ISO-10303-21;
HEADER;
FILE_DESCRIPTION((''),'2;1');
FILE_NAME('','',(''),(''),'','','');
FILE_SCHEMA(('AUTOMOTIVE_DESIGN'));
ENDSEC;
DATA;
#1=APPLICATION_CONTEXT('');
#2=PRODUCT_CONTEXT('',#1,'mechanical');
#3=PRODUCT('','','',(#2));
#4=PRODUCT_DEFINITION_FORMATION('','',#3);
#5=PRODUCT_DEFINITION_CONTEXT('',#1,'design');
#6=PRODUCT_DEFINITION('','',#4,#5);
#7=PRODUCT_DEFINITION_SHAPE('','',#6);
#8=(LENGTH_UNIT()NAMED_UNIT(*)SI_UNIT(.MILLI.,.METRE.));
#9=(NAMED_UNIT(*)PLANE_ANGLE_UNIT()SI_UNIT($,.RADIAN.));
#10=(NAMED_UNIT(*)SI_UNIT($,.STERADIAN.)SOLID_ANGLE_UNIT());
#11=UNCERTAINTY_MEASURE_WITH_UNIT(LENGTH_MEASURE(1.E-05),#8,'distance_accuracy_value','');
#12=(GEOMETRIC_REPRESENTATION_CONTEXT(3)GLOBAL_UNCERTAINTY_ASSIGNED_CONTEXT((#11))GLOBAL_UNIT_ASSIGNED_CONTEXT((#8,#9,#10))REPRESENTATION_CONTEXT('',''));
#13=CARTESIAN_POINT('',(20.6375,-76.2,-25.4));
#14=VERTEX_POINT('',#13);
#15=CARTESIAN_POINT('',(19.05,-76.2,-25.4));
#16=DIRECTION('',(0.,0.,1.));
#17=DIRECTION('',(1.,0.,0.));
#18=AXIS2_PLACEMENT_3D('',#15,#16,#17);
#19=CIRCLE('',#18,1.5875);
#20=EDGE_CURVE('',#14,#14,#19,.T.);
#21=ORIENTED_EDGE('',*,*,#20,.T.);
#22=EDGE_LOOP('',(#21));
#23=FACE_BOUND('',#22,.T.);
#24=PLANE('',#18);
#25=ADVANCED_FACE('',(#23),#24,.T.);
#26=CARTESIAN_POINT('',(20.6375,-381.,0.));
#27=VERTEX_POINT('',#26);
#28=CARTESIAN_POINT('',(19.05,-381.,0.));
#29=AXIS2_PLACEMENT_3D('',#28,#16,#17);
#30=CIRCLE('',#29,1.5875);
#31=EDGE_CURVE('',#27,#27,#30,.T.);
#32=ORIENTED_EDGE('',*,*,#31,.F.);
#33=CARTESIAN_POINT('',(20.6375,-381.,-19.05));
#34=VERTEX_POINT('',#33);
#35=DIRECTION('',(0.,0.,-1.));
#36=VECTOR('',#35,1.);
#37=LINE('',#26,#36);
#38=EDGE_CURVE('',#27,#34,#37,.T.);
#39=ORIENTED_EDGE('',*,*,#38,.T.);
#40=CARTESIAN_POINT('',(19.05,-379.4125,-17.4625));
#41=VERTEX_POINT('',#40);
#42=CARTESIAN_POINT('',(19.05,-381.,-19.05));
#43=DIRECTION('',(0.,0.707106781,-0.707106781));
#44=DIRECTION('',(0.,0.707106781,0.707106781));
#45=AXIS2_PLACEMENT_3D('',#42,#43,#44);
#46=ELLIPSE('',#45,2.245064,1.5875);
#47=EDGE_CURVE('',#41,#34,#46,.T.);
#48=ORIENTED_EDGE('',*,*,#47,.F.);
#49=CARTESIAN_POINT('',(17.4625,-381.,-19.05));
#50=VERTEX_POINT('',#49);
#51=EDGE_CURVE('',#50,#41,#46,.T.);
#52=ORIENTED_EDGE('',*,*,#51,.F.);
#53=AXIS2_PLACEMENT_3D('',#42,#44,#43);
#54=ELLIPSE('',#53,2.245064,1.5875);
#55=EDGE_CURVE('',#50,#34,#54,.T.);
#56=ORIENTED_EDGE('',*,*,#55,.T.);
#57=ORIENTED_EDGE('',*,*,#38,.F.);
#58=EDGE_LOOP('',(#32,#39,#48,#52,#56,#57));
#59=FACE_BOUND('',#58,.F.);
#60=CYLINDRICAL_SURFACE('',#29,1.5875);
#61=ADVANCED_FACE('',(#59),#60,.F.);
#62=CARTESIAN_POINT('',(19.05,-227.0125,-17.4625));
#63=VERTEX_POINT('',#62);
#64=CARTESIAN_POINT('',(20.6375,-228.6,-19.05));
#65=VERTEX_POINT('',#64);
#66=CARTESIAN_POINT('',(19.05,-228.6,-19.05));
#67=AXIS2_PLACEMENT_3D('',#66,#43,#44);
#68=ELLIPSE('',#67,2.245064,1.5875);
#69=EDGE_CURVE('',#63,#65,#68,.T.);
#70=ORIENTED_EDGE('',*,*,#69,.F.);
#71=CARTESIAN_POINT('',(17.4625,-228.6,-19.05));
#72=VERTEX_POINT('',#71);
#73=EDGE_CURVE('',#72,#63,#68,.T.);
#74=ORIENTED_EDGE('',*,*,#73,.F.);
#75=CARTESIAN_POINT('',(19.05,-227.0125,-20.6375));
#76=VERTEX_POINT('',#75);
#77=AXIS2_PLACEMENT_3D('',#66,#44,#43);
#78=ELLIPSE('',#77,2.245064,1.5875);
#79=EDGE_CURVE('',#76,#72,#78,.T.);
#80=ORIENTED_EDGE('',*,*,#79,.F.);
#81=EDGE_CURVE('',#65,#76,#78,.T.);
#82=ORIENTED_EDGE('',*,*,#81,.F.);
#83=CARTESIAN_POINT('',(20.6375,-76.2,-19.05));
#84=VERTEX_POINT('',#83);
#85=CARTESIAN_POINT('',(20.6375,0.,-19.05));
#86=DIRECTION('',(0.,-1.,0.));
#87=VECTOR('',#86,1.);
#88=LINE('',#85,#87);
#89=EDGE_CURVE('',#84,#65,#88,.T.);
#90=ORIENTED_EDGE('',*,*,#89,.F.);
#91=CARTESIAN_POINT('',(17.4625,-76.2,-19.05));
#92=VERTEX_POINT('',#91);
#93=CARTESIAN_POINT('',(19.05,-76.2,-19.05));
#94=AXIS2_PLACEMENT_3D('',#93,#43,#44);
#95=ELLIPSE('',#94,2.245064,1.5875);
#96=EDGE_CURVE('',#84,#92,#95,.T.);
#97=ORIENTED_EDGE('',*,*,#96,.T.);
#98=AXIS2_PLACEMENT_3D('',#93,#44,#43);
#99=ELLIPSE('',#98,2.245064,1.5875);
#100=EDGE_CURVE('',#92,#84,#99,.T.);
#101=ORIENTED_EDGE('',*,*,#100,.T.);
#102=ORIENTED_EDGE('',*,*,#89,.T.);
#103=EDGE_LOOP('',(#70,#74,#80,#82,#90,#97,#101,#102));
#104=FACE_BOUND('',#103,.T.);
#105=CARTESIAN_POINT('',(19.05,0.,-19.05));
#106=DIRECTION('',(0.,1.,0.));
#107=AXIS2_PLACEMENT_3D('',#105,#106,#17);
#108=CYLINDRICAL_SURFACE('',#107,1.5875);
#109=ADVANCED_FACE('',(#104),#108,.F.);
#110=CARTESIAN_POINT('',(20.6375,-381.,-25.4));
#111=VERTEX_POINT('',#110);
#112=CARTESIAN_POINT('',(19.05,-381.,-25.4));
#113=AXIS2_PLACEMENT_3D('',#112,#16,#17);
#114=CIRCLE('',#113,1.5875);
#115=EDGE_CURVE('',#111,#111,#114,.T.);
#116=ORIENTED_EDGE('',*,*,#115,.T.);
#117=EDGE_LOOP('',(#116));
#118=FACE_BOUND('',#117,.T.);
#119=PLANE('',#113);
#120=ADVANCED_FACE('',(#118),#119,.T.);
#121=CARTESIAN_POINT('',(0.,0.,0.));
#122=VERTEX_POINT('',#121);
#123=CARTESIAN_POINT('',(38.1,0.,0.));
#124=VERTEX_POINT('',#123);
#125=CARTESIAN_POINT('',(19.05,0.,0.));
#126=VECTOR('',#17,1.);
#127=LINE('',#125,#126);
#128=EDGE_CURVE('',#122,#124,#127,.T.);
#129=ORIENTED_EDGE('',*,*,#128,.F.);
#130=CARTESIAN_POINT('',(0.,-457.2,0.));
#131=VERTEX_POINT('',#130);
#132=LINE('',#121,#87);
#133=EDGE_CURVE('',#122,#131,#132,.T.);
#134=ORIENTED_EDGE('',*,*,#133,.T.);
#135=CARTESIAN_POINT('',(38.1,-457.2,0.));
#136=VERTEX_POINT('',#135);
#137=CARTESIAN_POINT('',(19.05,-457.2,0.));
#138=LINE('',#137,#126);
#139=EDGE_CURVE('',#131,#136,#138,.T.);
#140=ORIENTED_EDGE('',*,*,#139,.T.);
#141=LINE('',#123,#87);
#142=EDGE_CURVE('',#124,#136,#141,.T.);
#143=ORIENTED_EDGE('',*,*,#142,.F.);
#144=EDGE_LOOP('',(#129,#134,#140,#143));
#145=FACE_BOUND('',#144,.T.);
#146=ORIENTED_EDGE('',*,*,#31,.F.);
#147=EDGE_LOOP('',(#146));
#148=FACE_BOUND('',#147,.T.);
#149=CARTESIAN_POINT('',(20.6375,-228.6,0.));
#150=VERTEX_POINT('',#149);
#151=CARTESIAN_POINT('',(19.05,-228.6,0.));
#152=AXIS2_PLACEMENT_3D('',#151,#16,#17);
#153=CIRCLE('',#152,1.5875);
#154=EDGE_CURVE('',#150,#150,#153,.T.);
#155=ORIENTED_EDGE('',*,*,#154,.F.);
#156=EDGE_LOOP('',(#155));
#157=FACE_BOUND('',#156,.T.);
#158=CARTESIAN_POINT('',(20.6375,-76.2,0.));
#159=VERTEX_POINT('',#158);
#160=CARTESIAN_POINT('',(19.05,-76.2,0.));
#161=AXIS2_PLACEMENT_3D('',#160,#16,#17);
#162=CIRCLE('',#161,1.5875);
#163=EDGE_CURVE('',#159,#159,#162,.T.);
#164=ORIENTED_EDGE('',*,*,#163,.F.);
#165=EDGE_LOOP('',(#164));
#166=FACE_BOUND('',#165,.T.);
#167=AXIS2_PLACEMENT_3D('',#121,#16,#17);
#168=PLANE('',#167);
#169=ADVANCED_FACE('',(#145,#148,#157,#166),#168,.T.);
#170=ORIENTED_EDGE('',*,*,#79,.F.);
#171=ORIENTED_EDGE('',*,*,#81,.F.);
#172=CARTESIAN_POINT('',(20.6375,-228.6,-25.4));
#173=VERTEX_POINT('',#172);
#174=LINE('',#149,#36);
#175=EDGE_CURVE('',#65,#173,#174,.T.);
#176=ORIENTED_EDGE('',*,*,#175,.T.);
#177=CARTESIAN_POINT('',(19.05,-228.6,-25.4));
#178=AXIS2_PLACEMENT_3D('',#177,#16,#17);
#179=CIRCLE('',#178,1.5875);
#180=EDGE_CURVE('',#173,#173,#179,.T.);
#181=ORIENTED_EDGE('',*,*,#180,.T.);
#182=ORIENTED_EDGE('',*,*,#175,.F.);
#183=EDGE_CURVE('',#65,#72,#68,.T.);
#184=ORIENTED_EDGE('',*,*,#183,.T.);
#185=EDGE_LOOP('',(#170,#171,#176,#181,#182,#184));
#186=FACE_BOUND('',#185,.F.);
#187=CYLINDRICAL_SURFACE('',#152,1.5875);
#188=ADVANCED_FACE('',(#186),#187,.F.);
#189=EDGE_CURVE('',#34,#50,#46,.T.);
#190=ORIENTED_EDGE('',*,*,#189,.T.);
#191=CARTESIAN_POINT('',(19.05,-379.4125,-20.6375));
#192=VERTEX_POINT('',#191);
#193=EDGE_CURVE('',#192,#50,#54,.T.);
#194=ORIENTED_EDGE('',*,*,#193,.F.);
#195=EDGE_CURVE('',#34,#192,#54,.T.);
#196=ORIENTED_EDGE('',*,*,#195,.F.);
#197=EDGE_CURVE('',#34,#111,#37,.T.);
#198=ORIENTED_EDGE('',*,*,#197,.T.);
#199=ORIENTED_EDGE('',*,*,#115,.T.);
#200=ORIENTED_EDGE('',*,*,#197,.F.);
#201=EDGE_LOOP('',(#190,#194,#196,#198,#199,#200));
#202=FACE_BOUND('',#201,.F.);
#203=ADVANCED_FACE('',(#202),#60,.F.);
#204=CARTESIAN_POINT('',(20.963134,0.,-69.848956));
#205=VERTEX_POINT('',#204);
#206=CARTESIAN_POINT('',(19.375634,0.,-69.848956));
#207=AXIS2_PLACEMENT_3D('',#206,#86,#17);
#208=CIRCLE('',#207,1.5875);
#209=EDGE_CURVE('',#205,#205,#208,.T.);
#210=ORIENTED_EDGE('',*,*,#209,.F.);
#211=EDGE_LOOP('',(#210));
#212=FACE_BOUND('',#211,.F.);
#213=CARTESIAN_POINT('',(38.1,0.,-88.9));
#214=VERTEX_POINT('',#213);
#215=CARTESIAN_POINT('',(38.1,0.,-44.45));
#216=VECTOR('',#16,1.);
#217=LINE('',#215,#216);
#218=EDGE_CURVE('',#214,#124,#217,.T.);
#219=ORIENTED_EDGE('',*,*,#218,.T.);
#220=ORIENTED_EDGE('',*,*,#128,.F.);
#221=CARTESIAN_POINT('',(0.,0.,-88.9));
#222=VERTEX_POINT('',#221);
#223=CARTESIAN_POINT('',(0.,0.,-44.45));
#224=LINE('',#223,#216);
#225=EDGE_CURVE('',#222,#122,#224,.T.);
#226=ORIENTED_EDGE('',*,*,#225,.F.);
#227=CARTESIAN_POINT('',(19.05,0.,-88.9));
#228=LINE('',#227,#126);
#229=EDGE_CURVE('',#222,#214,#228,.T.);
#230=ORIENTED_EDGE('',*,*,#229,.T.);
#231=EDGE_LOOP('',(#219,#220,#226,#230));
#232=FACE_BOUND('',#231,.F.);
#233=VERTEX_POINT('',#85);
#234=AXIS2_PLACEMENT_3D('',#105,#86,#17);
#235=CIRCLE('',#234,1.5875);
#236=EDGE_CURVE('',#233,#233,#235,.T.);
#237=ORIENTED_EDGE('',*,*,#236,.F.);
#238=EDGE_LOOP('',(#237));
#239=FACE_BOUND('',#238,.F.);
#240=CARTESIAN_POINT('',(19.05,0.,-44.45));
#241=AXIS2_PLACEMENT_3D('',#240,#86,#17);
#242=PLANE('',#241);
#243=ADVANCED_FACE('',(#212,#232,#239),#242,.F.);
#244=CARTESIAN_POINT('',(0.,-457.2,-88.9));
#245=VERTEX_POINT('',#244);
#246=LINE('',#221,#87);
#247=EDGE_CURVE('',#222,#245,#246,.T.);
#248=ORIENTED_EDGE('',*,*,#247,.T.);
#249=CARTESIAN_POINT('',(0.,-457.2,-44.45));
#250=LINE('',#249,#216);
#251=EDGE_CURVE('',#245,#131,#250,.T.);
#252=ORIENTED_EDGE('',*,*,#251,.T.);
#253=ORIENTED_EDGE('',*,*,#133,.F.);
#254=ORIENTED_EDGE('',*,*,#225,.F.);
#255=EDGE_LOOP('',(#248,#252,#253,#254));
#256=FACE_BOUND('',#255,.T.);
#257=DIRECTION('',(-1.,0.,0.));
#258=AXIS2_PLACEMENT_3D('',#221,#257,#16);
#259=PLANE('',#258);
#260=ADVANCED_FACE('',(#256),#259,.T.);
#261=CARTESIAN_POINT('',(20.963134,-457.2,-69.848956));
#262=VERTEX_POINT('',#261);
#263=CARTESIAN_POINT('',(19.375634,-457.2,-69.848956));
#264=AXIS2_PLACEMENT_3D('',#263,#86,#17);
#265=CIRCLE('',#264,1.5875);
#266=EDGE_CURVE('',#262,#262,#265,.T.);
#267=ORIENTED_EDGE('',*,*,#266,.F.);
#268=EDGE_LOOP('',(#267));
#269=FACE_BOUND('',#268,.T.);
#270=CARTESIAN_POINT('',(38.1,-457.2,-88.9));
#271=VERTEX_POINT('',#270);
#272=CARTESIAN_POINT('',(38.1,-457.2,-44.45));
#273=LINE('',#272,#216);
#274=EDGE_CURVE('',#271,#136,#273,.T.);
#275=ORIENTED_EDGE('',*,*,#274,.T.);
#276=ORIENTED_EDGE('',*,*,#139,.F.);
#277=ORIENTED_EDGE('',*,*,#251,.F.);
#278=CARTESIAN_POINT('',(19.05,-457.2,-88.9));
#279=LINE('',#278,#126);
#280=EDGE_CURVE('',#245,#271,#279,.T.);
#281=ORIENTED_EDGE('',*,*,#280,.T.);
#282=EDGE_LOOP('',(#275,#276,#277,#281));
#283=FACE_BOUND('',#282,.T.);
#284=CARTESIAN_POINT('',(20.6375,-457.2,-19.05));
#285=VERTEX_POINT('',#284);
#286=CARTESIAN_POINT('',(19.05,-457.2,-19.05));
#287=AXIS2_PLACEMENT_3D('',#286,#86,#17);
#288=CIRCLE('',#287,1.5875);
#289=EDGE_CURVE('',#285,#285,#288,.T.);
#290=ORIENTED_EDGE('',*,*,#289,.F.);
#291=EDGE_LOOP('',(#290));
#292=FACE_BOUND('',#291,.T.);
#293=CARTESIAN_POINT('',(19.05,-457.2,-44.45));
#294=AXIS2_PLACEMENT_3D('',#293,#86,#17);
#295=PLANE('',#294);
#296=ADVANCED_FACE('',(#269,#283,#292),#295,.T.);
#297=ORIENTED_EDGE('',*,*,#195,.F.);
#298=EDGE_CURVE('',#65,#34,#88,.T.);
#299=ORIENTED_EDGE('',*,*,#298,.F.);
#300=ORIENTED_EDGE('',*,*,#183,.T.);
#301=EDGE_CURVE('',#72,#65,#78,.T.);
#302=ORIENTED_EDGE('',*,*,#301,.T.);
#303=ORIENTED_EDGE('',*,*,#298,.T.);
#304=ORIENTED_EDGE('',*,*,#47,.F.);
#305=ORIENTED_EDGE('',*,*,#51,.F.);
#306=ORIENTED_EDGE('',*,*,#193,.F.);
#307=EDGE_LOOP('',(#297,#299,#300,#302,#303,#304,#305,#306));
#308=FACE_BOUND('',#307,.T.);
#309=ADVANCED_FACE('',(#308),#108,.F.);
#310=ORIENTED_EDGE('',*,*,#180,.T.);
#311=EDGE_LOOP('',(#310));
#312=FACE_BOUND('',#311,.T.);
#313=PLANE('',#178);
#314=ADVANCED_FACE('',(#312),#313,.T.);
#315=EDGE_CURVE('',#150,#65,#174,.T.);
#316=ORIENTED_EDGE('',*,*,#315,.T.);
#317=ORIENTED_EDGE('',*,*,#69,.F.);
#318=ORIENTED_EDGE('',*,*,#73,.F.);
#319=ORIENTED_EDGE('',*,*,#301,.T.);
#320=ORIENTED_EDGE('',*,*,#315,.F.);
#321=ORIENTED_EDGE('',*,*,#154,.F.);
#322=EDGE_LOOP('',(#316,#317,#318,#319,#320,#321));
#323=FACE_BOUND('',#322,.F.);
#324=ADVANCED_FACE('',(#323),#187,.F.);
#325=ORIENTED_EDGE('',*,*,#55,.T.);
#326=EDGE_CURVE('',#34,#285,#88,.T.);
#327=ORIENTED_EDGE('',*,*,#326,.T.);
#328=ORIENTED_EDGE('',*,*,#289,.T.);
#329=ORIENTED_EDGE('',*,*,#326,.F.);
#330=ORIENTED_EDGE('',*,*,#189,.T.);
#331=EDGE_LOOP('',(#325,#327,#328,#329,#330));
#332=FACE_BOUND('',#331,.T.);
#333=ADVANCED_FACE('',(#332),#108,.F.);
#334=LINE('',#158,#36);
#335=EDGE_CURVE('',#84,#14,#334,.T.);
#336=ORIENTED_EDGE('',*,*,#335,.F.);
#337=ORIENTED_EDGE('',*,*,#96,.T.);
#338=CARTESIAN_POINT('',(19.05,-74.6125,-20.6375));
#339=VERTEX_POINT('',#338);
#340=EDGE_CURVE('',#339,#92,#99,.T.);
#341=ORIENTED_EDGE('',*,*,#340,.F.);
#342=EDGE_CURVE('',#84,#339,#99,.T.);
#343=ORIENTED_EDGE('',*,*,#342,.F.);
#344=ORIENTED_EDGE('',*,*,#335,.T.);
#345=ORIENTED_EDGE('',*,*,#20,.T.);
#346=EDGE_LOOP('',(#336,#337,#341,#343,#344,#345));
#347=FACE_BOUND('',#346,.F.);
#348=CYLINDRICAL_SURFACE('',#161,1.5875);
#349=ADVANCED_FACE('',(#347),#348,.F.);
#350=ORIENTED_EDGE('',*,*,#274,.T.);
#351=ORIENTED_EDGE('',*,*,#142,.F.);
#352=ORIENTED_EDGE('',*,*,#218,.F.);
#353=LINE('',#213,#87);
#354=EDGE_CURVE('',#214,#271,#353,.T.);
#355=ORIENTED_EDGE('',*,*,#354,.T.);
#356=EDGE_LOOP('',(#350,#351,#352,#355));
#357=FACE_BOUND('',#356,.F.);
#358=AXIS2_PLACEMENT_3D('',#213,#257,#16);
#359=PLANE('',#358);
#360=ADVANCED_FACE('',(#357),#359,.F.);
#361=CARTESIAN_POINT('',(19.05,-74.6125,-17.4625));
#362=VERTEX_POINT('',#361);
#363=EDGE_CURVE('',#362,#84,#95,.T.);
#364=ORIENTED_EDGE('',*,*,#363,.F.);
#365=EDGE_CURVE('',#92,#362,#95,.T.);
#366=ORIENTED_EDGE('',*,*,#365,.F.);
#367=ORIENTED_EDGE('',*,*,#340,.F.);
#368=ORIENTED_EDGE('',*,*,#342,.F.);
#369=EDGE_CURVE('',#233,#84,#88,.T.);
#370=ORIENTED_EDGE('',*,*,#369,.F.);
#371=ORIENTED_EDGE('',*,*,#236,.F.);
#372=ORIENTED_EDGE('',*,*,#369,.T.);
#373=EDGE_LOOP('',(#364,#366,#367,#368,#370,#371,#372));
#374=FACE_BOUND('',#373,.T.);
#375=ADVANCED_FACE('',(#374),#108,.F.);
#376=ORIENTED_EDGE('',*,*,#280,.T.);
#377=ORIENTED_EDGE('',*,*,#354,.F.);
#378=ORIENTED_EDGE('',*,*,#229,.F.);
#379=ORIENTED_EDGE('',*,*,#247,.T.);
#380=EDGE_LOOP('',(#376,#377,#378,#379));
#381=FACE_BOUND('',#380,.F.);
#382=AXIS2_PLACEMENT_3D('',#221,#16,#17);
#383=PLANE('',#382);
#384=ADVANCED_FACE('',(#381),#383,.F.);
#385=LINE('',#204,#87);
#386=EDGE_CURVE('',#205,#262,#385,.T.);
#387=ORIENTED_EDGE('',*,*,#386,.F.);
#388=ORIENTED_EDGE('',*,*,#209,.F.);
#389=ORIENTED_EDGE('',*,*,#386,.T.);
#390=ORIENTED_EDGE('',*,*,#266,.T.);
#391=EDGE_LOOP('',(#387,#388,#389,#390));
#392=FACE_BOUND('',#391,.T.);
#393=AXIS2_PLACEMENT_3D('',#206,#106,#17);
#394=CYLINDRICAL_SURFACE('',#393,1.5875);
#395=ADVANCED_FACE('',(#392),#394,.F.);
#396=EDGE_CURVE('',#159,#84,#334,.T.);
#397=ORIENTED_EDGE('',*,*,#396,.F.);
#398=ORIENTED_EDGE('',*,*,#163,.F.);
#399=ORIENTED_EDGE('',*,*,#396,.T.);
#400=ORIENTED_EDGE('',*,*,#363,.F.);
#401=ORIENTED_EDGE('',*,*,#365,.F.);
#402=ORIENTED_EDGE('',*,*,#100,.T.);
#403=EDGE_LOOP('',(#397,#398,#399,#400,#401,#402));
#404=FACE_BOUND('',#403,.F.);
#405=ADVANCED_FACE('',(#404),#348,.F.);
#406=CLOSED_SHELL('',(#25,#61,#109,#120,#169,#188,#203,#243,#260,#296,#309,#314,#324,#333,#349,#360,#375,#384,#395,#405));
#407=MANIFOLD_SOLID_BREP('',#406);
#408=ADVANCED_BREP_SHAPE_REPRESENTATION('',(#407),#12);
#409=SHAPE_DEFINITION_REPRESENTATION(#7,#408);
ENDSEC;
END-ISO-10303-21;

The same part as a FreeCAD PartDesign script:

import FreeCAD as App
import Part
import Sketcher
Q = App.Units.Quantity


def add_polygon(sketch, points):
    """Adds a closed chain of lines whose ends are joined by coincident constraints."""
    first, n = sketch.GeometryCount, len(points)
    for a, b in zip(points, points[1:] + points[:1]):
        sketch.addGeometry(Part.LineSegment(App.Vector(*a, 0), App.Vector(*b, 0)), False)
    for i in range(n):
        sketch.addConstraint(Sketcher.Constraint("Coincident", first + i, 2, first + (i + 1) % n, 1))

doc = App.newDocument("Part")
body = doc.addObject("PartDesign::Body", "Body")

# Sketch on XZ plane
sketch1 = doc.addObject("Sketcher::SketchObject", "Sketch")
body.addObject(sketch1)
sketch1.AttachmentSupport = (doc.XZ_Plane, [""])
sketch1.MapMode = "FlatFace"
add_polygon(sketch1, [(0, 0), (0, -89), (38, -89), (38, 0)])  # lines 0-3
sketch1.addConstraint(Sketcher.Constraint("Vertical", 0))
sketch1.addConstraint(Sketcher.Constraint("Horizontal", 1))
sketch1.addConstraint(Sketcher.Constraint("Vertical", 2))
sketch1.addConstraint(Sketcher.Constraint("Horizontal", 3))
sketch1.addConstraint(Sketcher.Constraint("Coincident", 3, 2, -1, 1))
sketch1.addConstraint(Sketcher.Constraint("DistanceX", 1, 1, 1, 2, Q("1.5 in")))
sketch1.addConstraint(Sketcher.Constraint("DistanceY", 0, 2, 0, 1, Q("3.5 in")))
pad1 = doc.addObject("PartDesign::Pad", "Pad")
body.addObject(pad1)
pad1.Profile = sketch1
pad1.Length = Q("18 in")

# Sketch on XZ plane
sketch2 = doc.addObject("Sketcher::SketchObject", "Sketch001")
body.addObject(sketch2)
sketch2.AttachmentSupport = (doc.XZ_Plane, [""])
sketch2.MapMode = "FlatFace"
sketch2.addGeometry(Part.Circle(App.Vector(19.1, -19.1, 0), App.Vector(0, 0, 1), 1.6), False)
sketch2.addGeometry(Part.Circle(App.Vector(19.4, -69.8, 0), App.Vector(0, 0, 1), 1.6), False)
sketch2.addConstraint(Sketcher.Constraint("Equal", 0, 1))
sketch2.addConstraint(Sketcher.Constraint("Diameter", 0, Q("0.125 in")))
sketch2.addConstraint(Sketcher.Constraint("DistanceX", -1, 1, 0, 3, Q("0.75 in")))
sketch2.addConstraint(Sketcher.Constraint("DistanceY", 0, 3, -1, 1, Q("0.75 in")))
sketch2.addConstraint(Sketcher.Constraint("DistanceX", -1, 1, 1, 3, Q("19.375634 mm")))
sketch2.addConstraint(Sketcher.Constraint("DistanceY", 1, 3, -1, 1, Q("69.848956 mm")))
pocket1 = doc.addObject("PartDesign::Pocket", "Pocket")
body.addObject(pocket1)
pocket1.Profile = sketch2
pocket1.Length = Q("18 in")
pocket1.Reversed = True

# Sketch on XY plane
sketch3 = doc.addObject("Sketcher::SketchObject", "Sketch002")
body.addObject(sketch3)
sketch3.AttachmentSupport = (doc.XY_Plane, [""])
sketch3.MapMode = "FlatFace"
sketch3.addGeometry(Part.Circle(App.Vector(19.1, -76.2, 0), App.Vector(0, 0, 1), 1.6), False)
sketch3.addGeometry(Part.Circle(App.Vector(19.1, -228.6, 0), App.Vector(0, 0, 1), 1.6), False)
sketch3.addGeometry(Part.Circle(App.Vector(19.1, -381, 0), App.Vector(0, 0, 1), 1.6), False)
sketch3.addConstraint(Sketcher.Constraint("Equal", 0, 1))
sketch3.addConstraint(Sketcher.Constraint("Equal", 1, 2))
sketch3.addConstraint(Sketcher.Constraint("Vertical", 0, 3, 1, 3))
sketch3.addConstraint(Sketcher.Constraint("Vertical", 1, 3, 2, 3))
sketch3.addConstraint(Sketcher.Constraint("Diameter", 0, Q("0.125 in")))
sketch3.addConstraint(Sketcher.Constraint("DistanceY", 0, 3, -1, 1, Q("3 in")))
sketch3.addConstraint(Sketcher.Constraint("DistanceY", 1, 3, -1, 1, Q("9 in")))
sketch3.addConstraint(Sketcher.Constraint("DistanceY", 2, 3, -1, 1, Q("15 in")))
sketch3.addConstraint(Sketcher.Constraint("DistanceX", -1, 1, 0, 3, Q("0.75 in")))
pocket2 = doc.addObject("PartDesign::Pocket", "Pocket001")
body.addObject(pocket2)
pocket2.Profile = sketch3
pocket2.Length = Q("1 in")

doc.recompute()
